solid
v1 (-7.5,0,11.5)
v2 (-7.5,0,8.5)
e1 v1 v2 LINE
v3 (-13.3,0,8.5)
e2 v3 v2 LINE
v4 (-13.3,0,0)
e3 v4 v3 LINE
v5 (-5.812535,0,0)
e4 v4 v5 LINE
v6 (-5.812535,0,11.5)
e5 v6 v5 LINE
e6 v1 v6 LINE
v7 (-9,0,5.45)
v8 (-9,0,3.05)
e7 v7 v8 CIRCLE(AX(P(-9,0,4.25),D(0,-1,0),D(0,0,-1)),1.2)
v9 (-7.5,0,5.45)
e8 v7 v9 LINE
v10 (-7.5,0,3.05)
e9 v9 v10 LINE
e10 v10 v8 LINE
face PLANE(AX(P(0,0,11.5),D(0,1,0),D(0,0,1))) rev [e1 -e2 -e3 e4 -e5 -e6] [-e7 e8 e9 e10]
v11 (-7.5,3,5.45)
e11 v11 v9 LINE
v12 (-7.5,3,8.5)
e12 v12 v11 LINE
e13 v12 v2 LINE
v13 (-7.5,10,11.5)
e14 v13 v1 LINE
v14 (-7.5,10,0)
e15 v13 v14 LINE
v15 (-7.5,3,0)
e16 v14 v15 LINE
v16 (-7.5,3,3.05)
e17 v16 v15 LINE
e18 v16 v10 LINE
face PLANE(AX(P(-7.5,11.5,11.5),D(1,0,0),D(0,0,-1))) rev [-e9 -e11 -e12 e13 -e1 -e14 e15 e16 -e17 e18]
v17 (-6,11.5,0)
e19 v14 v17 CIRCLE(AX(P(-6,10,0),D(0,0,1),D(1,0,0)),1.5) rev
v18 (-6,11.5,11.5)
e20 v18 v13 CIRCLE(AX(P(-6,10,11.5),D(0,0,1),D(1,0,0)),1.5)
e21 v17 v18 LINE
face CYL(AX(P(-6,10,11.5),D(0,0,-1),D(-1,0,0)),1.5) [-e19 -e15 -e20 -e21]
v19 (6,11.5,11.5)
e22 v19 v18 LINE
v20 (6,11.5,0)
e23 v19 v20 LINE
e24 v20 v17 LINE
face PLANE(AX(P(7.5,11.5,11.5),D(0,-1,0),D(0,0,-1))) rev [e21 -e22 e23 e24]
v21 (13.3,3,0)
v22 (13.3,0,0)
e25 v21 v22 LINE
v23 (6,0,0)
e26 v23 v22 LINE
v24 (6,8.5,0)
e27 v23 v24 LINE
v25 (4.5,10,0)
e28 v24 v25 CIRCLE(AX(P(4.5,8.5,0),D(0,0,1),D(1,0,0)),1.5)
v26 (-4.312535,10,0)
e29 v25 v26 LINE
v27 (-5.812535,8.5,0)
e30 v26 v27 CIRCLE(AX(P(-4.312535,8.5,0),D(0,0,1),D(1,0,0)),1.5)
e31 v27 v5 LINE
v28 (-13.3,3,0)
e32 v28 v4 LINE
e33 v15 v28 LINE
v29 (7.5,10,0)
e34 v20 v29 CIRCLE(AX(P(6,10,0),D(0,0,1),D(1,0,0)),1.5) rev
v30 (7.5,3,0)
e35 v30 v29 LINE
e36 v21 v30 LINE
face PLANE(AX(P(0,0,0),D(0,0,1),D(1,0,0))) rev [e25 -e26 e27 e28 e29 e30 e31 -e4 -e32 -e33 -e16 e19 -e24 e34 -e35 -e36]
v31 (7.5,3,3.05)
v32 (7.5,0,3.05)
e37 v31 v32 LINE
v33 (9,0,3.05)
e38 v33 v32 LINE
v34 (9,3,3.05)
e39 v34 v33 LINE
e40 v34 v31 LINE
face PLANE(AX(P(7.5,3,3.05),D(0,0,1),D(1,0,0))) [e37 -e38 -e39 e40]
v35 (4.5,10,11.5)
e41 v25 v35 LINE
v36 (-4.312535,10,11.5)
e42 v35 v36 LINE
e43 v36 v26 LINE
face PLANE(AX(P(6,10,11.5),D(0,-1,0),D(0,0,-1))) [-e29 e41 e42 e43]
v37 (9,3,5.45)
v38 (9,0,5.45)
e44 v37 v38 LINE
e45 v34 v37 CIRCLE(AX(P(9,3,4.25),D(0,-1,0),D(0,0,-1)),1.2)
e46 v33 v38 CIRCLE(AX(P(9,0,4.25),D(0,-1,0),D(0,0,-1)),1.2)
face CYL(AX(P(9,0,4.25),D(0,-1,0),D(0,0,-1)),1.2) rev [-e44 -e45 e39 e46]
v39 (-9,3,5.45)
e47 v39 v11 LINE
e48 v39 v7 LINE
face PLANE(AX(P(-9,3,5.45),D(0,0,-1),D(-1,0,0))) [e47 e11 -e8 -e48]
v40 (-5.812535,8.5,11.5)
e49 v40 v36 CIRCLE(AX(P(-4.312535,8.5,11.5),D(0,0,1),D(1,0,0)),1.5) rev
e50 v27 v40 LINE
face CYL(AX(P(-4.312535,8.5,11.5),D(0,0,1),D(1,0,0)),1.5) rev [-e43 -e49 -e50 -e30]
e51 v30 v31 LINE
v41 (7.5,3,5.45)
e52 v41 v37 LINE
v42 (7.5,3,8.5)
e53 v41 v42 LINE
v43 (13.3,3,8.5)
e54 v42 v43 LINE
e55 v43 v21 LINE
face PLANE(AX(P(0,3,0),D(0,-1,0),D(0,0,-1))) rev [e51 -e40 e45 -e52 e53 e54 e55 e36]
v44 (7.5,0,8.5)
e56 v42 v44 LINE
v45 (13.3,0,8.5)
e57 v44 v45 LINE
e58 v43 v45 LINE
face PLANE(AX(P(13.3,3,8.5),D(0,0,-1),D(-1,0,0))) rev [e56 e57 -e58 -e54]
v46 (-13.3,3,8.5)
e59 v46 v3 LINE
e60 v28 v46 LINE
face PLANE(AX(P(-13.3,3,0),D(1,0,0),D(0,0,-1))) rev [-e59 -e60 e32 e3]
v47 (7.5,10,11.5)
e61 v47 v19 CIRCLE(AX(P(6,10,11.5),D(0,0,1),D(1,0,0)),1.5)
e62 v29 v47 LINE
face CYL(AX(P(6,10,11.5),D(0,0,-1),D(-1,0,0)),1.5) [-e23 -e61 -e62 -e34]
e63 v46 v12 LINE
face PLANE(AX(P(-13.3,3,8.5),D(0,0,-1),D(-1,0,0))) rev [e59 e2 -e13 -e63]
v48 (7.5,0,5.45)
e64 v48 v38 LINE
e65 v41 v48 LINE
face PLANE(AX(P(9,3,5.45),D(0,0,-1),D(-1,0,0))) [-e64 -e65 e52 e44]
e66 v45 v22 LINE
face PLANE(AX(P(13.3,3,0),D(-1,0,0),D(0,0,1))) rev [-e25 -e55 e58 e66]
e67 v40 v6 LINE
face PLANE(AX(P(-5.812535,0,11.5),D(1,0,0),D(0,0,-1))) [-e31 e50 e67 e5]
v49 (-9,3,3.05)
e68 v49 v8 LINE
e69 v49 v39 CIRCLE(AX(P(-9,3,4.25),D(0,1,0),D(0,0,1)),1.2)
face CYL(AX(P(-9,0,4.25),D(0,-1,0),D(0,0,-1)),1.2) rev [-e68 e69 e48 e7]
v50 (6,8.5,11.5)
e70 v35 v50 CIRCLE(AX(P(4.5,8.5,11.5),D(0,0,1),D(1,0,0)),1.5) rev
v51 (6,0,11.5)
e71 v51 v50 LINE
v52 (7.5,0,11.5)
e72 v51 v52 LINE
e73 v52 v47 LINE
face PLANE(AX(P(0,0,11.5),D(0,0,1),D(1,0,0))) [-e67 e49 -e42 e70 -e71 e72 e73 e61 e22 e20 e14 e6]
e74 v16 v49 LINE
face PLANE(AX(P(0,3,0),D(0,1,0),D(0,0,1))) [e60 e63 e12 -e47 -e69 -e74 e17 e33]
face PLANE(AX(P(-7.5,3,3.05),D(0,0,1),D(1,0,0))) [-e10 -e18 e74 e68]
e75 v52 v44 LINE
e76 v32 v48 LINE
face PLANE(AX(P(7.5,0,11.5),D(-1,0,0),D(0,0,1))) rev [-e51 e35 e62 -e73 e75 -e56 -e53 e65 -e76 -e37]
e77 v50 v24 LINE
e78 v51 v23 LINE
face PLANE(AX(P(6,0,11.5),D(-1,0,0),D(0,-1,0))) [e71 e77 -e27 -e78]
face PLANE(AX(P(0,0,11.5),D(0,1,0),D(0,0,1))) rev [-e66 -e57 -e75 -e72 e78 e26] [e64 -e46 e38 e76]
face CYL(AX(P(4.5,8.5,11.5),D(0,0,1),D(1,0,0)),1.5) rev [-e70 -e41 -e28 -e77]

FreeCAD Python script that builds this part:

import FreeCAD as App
import Part
import Sketcher
from FreeCAD import Vector
Q = App.Units.Quantity


def edges_at(feature, points):
    """Names of the edges that pass closest to the given points."""
    edges = feature.Shape.Edges
    near = lambda p: min(range(len(edges)), key=lambda i: edges[i].distToShape(Part.Vertex(*p))[0])
    return sorted({f"Edge{near(p) + 1}" for p in points})


def add_polygon(sketch, points):
    """Adds a closed chain of lines whose ends are joined by coincident constraints."""
    first, n = sketch.GeometryCount, len(points)
    for a, b in zip(points, points[1:] + points[:1]):
        sketch.addGeometry(Part.LineSegment(App.Vector(*a, 0), App.Vector(*b, 0)), False)
    for i in range(n):
        sketch.addConstraint(Sketcher.Constraint("Coincident", first + i, 2, first + (i + 1) % n, 1))

doc = App.newDocument("Part")
body = doc.addObject("PartDesign::Body", "Body")

sketch1 = body.newObject("Sketcher::SketchObject", "Sketch")
sketch1.AttachmentSupport = (doc.getObject("XY_Plane"), [""])
sketch1.MapMode = "FlatFace"
add_polygon(sketch1, [(7.5, 0), (7.5, 11.5), (-7.5, 11.5), (-7.5, 0)])
sketch1.addConstraint(Sketcher.Constraint("Vertical", 0))
sketch1.addConstraint(Sketcher.Constraint("Horizontal", 1))
sketch1.addConstraint(Sketcher.Constraint("Vertical", 2))
sketch1.addConstraint(Sketcher.Constraint("Horizontal", 3))
sketch1.addConstraint(Sketcher.Constraint("Symmetric", 2, 2, 3, 2, -1, 1))
sketch1.addConstraint(Sketcher.Constraint("DistanceX", 1, 2, 1, 1, Q("15 mm")))
sketch1.addConstraint(Sketcher.Constraint("DistanceY", 0, 1, 0, 2, Q("11.5 mm")))
pad1 = body.newObject("PartDesign::Pad", "Pad")
pad1.Profile = sketch1
pad1.Length = 11.5

sketch2 = body.newObject("Sketcher::SketchObject", "Sketch001")
sketch2.AttachmentSupport = (doc.getObject("XY_Plane"), [""])
sketch2.MapMode = "FlatFace"
add_polygon(sketch2, [(-5.812535, 10), (-5.812535, 0), (6, 0), (6, 10)])
sketch2.addConstraint(Sketcher.Constraint("Vertical", 0))
sketch2.addConstraint(Sketcher.Constraint("Horizontal", 1))
sketch2.addConstraint(Sketcher.Constraint("Vertical", 2))
sketch2.addConstraint(Sketcher.Constraint("Horizontal", 3))
sketch2.addConstraint(Sketcher.Constraint("PointOnObject", 0, 2, -1))
sketch2.addConstraint(Sketcher.Constraint("DistanceY", 0, 2, 0, 1, Q("10 mm")))
sketch2.addConstraint(Sketcher.Constraint("DistanceX", -1, 1, 1, 2, Q("6 mm")))
sketch2.addConstraint(Sketcher.Constraint("DistanceX", 1, 1, 1, 2, Q("11.812535 mm")))
pocket1 = body.newObject("PartDesign::Pocket", "Pocket")
pocket1.Profile = sketch2
pocket1.Length = 11.5
pocket1.Reversed = True
doc.recompute()

fillet = body.newObject("PartDesign::Fillet", "Fillet")
fillet.Base = (pocket1, edges_at(pocket1, [(6, 10, 5.75)]))
fillet.Radius = 1.5
doc.recompute()

fillet2 = body.newObject("PartDesign::Fillet", "Fillet001")
fillet2.Base = (fillet, edges_at(fillet, [(-5.813, 10, 5.75)]))
fillet2.Radius = 1.5
doc.recompute()

fillet3 = body.newObject("PartDesign::Fillet", "Fillet002")
fillet3.Base = (fillet2, edges_at(fillet2, [(7.5, 11.5, 5.75)]))
fillet3.Radius = 1.5
doc.recompute()

fillet4 = body.newObject("PartDesign::Fillet", "Fillet003")
fillet4.Base = (fillet3, edges_at(fillet3, [(-7.5, 11.5, 5.75)]))
fillet4.Radius = 1.5

sketch3 = body.newObject("Sketcher::SketchObject", "Sketch002")
sketch3.AttachmentSupport = (doc.getObject("XZ_Plane"), [""])
sketch3.MapMode = "FlatFace"
add_polygon(sketch3, [(-13.3, 0), (-13.3, 8.5), (-7.5, 8.5), (-7.5, 0)])
add_polygon(sketch3, [(7.5, 0), (7.5, 8.5), (13.3, 8.5), (13.3, 0)])
sketch3.addConstraint(Sketcher.Constraint("Vertical", 0))
sketch3.addConstraint(Sketcher.Constraint("Horizontal", 1))
sketch3.addConstraint(Sketcher.Constraint("Vertical", 2))
sketch3.addConstraint(Sketcher.Constraint("Horizontal", 3))
sketch3.addConstraint(Sketcher.Constraint("Vertical", 4))
sketch3.addConstraint(Sketcher.Constraint("Horizontal", 5))
sketch3.addConstraint(Sketcher.Constraint("Vertical", 6))
sketch3.addConstraint(Sketcher.Constraint("Horizontal", 7))
sketch3.addConstraint(Sketcher.Constraint("Symmetric", 3, 2, 6, 2, -1, 1))
sketch3.addConstraint(Sketcher.Constraint("Symmetric", 1, 2, 4, 2, -2))
sketch3.addConstraint(Sketcher.Constraint("PointOnObject", 2, 2, -1))
sketch3.addConstraint(Sketcher.Constraint("DistanceX", 1, 1, 1, 2, Q("5.8 mm")))
sketch3.addConstraint(Sketcher.Constraint("DistanceY", 0, 1, 0, 2, Q("8.5 mm")))
sketch3.addConstraint(Sketcher.Constraint("DistanceX", 1, 2, 4, 2, Q("15 mm")))
pad2 = body.newObject("PartDesign::Pad", "Pad001")
pad2.Profile = sketch3
pad2.Length = 3
pad2.Reversed = True

sketch4 = body.newObject("Sketcher::SketchObject", "Sketch003")
sketch4.AttachmentSupport = (doc.getObject("XZ_Plane"), [""])
sketch4.MapMode = "FlatFace"
sketch4.addGeometry(Part.Circle(Vector(-9, 4.25, 0), Vector(0, 0, 1), 1.2), False)
sketch4.addGeometry(Part.Circle(Vector(9, 4.25, 0), Vector(0, 0, 1), 1.2), False)
sketch4.addConstraint(Sketcher.Constraint("Equal", 0, 1))
sketch4.addConstraint(Sketcher.Constraint("Symmetric", 0, 3, 1, 3, -2))
sketch4.addConstraint(Sketcher.Constraint("Diameter", 0, Q("2.4 mm")))
sketch4.addConstraint(Sketcher.Constraint("DistanceX", 0, 3, -1, 1, Q("9 mm")))
sketch4.addConstraint(Sketcher.Constraint("DistanceY", -1, 1, 0, 3, Q("4.25 mm")))
doc.recompute()
hole = body.newObject("PartDesign::Hole", "Hole")
hole.Profile = sketch4
hole.ThreadType = "None"
hole.Diameter = 2.4
hole.DepthType = "ThroughAll"

sketch5 = body.newObject("Sketcher::SketchObject", "Sketch004")
sketch5.AttachmentSupport = (doc.getObject("XZ_Plane"), [""])
sketch5.MapMode = "FlatFace"
add_polygon(sketch5, [(7.5, 3.05), (7.5, 5.45), (9, 5.45), (9, 3.05)])
add_polygon(sketch5, [(-9, 3.05), (-9, 5.45), (-7.5, 5.45), (-7.5, 3.05)])
sketch5.addConstraint(Sketcher.Constraint("Vertical", 0))
sketch5.addConstraint(Sketcher.Constraint("Horizontal", 1))
sketch5.addConstraint(Sketcher.Constraint("Vertical", 2))
sketch5.addConstraint(Sketcher.Constraint("Horizontal", 3))
sketch5.addConstraint(Sketcher.Constraint("Vertical", 4))
sketch5.addConstraint(Sketcher.Constraint("Horizontal", 5))
sketch5.addConstraint(Sketcher.Constraint("Vertical", 6))
sketch5.addConstraint(Sketcher.Constraint("Horizontal", 7))
sketch5.addConstraint(Sketcher.Constraint("Symmetric", 1, 2, 4, 2, -2))
sketch5.addConstraint(Sketcher.Constraint("Symmetric", 3, 2, 6, 2, -2))
sketch5.addConstraint(Sketcher.Constraint("DistanceX", 1, 1, 1, 2, Q("1.5 mm")))
sketch5.addConstraint(Sketcher.Constraint("DistanceY", 0, 1, 0, 2, Q("2.4 mm")))
sketch5.addConstraint(Sketcher.Constraint("DistanceX", -1, 1, 1, 2, Q("9 mm")))
sketch5.addConstraint(Sketcher.Constraint("DistanceY", -1, 1, 0, 2, Q("5.45 mm")))
pocket2 = body.newObject("PartDesign::Pocket", "Pocket001")
pocket2.Profile = sketch5
pocket2.Length = 3

doc.recompute()
